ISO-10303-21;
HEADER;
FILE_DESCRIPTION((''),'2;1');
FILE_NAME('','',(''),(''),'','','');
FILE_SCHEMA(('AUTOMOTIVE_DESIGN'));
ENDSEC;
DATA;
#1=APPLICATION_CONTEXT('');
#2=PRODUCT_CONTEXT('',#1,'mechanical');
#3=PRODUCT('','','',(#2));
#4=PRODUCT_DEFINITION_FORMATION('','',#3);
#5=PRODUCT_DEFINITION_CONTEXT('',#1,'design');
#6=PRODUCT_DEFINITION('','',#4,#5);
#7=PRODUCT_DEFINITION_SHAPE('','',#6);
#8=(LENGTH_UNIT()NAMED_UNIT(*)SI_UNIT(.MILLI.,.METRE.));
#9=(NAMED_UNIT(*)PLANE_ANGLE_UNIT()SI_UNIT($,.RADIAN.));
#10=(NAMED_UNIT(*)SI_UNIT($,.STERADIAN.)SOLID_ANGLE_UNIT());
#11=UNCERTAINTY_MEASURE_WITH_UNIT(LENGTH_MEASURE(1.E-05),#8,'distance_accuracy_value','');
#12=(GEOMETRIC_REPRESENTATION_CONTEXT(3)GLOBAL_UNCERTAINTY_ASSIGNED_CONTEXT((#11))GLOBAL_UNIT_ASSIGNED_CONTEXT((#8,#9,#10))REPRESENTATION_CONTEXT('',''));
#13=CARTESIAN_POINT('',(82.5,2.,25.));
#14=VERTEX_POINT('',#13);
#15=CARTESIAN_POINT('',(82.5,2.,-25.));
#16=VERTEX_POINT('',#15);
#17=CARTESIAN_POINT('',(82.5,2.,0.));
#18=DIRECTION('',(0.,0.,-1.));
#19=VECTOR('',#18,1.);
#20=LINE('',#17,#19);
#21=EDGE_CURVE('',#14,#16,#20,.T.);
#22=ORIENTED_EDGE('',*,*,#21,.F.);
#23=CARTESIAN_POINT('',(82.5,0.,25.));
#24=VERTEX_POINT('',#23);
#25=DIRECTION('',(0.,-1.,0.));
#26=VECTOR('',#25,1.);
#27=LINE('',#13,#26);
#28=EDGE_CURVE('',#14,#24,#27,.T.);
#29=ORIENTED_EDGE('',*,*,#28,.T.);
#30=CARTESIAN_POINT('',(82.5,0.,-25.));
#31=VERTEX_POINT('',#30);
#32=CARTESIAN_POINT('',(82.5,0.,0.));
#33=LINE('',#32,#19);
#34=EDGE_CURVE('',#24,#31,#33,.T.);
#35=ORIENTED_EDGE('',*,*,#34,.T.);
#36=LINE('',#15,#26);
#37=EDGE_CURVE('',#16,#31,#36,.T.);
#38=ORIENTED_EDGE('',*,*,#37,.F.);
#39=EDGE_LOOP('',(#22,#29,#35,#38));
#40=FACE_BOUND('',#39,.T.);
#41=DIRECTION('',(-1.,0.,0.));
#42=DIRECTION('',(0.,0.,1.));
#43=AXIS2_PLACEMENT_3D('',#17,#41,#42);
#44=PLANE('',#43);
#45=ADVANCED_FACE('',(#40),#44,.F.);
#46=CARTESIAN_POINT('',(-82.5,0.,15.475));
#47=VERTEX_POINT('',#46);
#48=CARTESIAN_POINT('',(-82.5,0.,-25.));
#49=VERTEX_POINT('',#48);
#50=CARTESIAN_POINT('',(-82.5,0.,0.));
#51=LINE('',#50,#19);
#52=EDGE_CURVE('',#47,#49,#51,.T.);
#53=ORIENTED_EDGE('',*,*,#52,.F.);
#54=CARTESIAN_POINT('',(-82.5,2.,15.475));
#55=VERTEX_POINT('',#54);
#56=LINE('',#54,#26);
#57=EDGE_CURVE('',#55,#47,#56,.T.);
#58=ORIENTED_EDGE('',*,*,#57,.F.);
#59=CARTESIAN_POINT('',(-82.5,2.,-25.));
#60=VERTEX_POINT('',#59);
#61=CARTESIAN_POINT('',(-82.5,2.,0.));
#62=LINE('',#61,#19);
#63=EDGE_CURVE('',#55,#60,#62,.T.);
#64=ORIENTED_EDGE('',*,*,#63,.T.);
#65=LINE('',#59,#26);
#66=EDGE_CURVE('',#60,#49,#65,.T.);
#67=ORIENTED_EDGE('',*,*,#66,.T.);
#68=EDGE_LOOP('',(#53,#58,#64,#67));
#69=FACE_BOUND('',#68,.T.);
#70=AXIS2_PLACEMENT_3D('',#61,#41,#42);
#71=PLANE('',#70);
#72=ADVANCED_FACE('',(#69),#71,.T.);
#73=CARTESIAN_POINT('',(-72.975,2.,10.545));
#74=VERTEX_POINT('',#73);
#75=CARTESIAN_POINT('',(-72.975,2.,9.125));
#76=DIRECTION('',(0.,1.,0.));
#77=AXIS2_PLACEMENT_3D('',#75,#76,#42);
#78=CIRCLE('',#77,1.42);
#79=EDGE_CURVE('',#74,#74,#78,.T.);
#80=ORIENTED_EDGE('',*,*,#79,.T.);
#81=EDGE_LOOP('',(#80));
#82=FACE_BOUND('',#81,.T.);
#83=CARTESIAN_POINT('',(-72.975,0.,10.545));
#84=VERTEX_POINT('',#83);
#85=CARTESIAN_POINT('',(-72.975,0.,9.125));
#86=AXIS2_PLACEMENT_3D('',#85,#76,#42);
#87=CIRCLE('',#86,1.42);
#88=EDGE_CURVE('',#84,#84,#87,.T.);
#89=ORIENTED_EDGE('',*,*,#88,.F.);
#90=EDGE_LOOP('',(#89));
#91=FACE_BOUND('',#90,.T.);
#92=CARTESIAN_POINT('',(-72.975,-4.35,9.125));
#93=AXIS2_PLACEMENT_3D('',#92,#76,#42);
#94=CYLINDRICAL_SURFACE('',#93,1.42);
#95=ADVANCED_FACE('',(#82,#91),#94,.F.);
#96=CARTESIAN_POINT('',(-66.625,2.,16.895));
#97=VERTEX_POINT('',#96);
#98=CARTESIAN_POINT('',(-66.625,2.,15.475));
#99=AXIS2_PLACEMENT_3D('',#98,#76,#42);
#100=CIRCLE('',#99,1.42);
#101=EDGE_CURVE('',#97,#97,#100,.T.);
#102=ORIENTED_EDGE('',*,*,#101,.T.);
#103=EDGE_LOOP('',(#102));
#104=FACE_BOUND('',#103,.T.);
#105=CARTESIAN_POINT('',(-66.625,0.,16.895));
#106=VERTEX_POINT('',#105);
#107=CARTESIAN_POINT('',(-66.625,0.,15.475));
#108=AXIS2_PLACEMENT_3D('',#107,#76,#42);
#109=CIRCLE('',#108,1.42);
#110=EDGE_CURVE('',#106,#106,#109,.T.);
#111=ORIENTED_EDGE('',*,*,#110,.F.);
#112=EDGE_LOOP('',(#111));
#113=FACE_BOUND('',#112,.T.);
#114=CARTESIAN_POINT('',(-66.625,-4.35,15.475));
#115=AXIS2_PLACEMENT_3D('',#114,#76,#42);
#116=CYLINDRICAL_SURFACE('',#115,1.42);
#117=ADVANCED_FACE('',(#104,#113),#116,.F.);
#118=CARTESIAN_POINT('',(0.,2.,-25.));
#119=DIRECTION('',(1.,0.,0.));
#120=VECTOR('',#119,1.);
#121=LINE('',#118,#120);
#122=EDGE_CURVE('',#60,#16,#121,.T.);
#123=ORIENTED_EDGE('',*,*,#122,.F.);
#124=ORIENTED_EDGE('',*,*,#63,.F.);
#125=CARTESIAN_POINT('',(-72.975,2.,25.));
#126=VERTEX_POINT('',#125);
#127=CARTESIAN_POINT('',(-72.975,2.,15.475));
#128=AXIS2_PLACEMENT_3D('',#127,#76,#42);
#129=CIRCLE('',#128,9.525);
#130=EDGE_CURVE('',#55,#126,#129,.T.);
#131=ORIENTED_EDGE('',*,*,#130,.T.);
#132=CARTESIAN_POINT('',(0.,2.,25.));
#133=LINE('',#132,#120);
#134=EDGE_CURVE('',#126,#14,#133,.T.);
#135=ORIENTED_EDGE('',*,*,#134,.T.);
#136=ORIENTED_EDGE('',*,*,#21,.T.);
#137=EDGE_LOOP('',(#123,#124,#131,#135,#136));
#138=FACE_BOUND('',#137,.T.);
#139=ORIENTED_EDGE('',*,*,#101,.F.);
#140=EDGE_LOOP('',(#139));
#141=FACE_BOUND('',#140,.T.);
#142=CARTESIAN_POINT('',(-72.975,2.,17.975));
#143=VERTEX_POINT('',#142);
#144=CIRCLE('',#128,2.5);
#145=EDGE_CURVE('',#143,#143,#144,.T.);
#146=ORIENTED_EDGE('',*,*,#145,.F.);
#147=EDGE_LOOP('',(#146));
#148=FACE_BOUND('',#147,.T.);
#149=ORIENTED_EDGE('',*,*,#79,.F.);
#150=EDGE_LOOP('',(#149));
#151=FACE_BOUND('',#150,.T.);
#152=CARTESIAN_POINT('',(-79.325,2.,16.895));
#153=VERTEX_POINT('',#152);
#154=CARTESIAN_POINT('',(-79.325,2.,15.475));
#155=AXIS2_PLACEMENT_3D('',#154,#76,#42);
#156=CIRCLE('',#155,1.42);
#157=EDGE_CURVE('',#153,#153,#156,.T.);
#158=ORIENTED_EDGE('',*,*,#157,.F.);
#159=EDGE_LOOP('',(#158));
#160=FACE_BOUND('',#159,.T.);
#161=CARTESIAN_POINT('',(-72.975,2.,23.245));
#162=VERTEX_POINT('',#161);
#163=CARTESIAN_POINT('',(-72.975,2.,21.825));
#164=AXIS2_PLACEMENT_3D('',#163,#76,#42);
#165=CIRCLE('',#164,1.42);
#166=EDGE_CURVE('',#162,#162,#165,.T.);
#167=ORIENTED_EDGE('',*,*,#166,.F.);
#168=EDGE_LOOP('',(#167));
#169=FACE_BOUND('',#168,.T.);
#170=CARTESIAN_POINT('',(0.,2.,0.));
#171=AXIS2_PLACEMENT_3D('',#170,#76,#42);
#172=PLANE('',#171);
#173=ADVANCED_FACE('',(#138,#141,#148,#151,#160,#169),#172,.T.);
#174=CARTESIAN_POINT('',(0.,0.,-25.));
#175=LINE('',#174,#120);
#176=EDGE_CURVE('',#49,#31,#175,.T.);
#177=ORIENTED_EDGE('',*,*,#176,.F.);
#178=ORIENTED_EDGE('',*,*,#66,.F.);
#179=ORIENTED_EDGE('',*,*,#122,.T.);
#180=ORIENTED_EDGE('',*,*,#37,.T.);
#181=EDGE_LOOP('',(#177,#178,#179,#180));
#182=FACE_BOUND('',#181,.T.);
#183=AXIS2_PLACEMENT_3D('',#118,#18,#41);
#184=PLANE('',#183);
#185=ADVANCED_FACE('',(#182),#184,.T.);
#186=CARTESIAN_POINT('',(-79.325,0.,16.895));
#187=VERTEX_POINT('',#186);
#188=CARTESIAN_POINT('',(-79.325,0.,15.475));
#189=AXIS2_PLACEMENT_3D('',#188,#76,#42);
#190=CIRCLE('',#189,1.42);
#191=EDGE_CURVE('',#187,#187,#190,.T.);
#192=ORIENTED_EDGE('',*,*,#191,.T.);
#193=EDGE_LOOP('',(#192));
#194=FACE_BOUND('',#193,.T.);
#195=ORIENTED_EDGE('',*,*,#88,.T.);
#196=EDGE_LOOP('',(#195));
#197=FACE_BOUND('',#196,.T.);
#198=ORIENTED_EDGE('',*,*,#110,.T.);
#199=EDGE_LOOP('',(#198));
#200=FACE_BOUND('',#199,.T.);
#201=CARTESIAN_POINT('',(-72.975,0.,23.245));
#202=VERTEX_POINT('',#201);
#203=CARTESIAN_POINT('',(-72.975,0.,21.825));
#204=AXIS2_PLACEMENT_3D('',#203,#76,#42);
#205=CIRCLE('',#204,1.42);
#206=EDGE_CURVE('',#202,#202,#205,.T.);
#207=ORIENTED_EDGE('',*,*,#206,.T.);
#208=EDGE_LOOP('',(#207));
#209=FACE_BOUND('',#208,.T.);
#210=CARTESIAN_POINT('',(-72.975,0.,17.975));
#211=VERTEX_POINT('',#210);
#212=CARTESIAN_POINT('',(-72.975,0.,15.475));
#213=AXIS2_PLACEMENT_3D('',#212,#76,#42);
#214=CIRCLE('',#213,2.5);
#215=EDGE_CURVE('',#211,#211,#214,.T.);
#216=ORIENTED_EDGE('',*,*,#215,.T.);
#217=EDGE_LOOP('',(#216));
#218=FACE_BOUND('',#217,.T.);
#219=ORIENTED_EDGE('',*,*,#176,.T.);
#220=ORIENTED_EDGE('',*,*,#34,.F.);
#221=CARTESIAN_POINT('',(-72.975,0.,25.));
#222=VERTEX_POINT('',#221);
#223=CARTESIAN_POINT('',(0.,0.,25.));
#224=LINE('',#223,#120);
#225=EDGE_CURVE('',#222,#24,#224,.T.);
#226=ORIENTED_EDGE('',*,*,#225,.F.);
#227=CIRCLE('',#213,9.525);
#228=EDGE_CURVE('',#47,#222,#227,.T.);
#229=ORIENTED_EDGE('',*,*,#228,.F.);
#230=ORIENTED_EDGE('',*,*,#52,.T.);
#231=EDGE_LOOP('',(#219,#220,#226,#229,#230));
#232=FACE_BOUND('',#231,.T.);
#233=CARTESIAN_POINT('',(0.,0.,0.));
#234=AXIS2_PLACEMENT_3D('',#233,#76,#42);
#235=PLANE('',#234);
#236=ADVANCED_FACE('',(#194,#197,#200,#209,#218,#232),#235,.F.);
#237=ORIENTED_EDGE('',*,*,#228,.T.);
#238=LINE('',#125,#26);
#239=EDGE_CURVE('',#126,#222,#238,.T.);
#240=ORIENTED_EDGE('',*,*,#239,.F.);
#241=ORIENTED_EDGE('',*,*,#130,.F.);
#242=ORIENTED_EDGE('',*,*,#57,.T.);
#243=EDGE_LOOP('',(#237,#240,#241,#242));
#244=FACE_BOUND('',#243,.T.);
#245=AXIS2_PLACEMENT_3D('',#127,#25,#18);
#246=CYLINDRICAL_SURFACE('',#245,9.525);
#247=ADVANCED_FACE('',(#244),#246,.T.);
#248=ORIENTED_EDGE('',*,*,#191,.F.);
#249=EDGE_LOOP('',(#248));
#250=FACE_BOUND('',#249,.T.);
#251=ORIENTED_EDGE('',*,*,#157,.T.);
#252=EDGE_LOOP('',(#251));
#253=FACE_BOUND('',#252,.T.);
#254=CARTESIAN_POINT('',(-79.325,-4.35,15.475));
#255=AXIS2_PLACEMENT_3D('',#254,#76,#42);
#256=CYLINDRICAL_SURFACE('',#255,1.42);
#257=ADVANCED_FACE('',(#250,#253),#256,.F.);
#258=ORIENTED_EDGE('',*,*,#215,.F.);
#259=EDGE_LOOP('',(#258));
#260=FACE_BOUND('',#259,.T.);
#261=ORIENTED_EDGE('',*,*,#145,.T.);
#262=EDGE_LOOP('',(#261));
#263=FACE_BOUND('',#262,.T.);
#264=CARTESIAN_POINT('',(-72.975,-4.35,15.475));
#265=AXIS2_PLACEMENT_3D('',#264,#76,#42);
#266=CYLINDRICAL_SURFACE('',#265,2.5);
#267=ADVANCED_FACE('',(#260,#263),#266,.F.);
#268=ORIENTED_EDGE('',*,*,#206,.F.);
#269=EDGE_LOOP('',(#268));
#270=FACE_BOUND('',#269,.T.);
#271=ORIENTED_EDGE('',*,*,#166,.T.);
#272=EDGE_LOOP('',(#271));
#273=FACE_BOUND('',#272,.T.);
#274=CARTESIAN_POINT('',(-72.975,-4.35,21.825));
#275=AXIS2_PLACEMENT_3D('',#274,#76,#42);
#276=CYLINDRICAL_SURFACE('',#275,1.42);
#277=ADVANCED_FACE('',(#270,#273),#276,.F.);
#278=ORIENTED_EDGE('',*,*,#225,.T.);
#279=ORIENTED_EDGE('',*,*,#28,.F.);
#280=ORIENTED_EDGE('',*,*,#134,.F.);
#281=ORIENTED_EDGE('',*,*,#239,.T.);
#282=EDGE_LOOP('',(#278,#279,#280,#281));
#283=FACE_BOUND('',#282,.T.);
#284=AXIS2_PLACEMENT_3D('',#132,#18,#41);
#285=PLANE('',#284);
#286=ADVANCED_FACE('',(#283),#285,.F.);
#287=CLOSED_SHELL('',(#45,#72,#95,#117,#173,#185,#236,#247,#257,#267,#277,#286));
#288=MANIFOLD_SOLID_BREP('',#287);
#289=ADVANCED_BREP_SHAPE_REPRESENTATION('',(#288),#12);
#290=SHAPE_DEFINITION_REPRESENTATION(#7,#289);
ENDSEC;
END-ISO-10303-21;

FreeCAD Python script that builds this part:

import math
import FreeCAD as App
import Part
import Sketcher

V = App.Vector

doc = App.newDocument("Part")
body = doc.addObject("PartDesign::Body", "Body")

sketch1 = doc.addObject("Sketcher::SketchObject", "Sketch")
body.addObject(sketch1)
sketch1.AttachmentSupport = (doc.XZ_Plane, [""])
sketch1.MapMode = "FlatFace"
sketch1.addGeometry(Part.LineSegment(V(-82, -25, 0), V(-82, 15, 0)), False)
sketch1.addGeometry(Part.ArcOfCircle(Part.Circle(V(-73, 15, 0), V(0, 0, 1), 10), math.radians(90), math.radians(180)), False)
sketch1.addGeometry(Part.LineSegment(V(-73, 25, 0), V(82, 25, 0)), False)
sketch1.addGeometry(Part.LineSegment(V(82, 25, 0), V(82, -25, 0)), False)
sketch1.addGeometry(Part.LineSegment(V(82, -25, 0), V(-82, -25, 0)), False)
sketch1.addConstraint(Sketcher.Constraint("Tangent", 0, 2, 1, 2))
sketch1.addConstraint(Sketcher.Constraint("Tangent", 1, 1, 2, 1))
sketch1.addConstraint(Sketcher.Constraint("Coincident", 2, 2, 3, 1))
sketch1.addConstraint(Sketcher.Constraint("Coincident", 3, 2, 4, 1))
sketch1.addConstraint(Sketcher.Constraint("Coincident", 4, 2, 0, 1))
sketch1.addConstraint(Sketcher.Constraint("Vertical", 0))
sketch1.addConstraint(Sketcher.Constraint("Horizontal", 2))
sketch1.addConstraint(Sketcher.Constraint("Vertical", 3))
sketch1.addConstraint(Sketcher.Constraint("Horizontal", 4))
sketch1.addConstraint(Sketcher.Constraint("Symmetric", 2, 2, 4, 2, -1, 1))
sketch1.addConstraint(Sketcher.Constraint("DistanceX", 4, 2, 4, 1, 165.0))
sketch1.addConstraint(Sketcher.Constraint("DistanceY", 3, 2, 3, 1, 50.0))
sketch1.addConstraint(Sketcher.Constraint("Radius", 1, 9.525))
pad1 = doc.addObject("PartDesign::Pad", "Pad")
body.addObject(pad1)
pad1.Profile = sketch1
pad1.Length = 2
pad1.Reversed = True

sketch2 = doc.addObject("Sketcher::SketchObject", "Sketch001")
body.addObject(sketch2)
sketch2.AttachmentSupport = (doc.XZ_Plane, [""])
sketch2.MapMode = "FlatFace"
sketch2.AttachmentOffset = App.Placement(V(0, 0, -2), App.Rotation())
sketch2.addGeometry(Part.Circle(V(-66.6, 15.5, 0), V(0, 0, 1), 1.4), False)
sketch2.addGeometry(Part.Circle(V(-73, 9.1, 0), V(0, 0, 1), 1.4), False)
sketch2.addGeometry(Part.Circle(V(-79.3, 15.5, 0), V(0, 0, 1), 1.4), False)
sketch2.addGeometry(Part.Circle(V(-73, 21.8, 0), V(0, 0, 1), 1.4), False)
sketch2.addGeometry(Part.Circle(V(-73, 15.5, 0), V(0, 0, 1), 2.5), False)
sketch2.addConstraint(Sketcher.Constraint("Equal", 0, 1))
sketch2.addConstraint(Sketcher.Constraint("Equal", 1, 2))
sketch2.addConstraint(Sketcher.Constraint("Equal", 2, 3))
sketch2.addConstraint(Sketcher.Constraint("Horizontal", 0, 3, 2, 3))
sketch2.addConstraint(Sketcher.Constraint("Horizontal", 2, 3, 4, 3))
sketch2.addConstraint(Sketcher.Constraint("Vertical", 1, 3, 3, 3))
sketch2.addConstraint(Sketcher.Constraint("Vertical", 3, 3, 4, 3))
sketch2.addConstraint(Sketcher.Constraint("Diameter", 4, 5.0))
sketch2.addConstraint(Sketcher.Constraint("Diameter", 0, 2.84))
sketch2.addConstraint(Sketcher.Constraint("DistanceX", 2, 3, 0, 3, 12.7))
sketch2.addConstraint(Sketcher.Constraint("DistanceY", 1, 3, 3, 3, 12.7))
sketch2.addConstraint(Sketcher.Constraint("DistanceX", 1, 3, 0, 3, 6.35))
sketch2.addConstraint(Sketcher.Constraint("DistanceY", 1, 3, 0, 3, 6.35))
sketch2.addConstraint(Sketcher.Constraint("DistanceX", 0, 3, -1, 1, 66.625))
sketch2.addConstraint(Sketcher.Constraint("DistanceY", -1, 1, 0, 3, 15.475))
pocket1 = doc.addObject("PartDesign::Pocket", "Pocket")
body.addObject(pocket1)
pocket1.Profile = sketch2
pocket1.Length = 6.35
pocket1.Reversed = True

doc.recompute()
